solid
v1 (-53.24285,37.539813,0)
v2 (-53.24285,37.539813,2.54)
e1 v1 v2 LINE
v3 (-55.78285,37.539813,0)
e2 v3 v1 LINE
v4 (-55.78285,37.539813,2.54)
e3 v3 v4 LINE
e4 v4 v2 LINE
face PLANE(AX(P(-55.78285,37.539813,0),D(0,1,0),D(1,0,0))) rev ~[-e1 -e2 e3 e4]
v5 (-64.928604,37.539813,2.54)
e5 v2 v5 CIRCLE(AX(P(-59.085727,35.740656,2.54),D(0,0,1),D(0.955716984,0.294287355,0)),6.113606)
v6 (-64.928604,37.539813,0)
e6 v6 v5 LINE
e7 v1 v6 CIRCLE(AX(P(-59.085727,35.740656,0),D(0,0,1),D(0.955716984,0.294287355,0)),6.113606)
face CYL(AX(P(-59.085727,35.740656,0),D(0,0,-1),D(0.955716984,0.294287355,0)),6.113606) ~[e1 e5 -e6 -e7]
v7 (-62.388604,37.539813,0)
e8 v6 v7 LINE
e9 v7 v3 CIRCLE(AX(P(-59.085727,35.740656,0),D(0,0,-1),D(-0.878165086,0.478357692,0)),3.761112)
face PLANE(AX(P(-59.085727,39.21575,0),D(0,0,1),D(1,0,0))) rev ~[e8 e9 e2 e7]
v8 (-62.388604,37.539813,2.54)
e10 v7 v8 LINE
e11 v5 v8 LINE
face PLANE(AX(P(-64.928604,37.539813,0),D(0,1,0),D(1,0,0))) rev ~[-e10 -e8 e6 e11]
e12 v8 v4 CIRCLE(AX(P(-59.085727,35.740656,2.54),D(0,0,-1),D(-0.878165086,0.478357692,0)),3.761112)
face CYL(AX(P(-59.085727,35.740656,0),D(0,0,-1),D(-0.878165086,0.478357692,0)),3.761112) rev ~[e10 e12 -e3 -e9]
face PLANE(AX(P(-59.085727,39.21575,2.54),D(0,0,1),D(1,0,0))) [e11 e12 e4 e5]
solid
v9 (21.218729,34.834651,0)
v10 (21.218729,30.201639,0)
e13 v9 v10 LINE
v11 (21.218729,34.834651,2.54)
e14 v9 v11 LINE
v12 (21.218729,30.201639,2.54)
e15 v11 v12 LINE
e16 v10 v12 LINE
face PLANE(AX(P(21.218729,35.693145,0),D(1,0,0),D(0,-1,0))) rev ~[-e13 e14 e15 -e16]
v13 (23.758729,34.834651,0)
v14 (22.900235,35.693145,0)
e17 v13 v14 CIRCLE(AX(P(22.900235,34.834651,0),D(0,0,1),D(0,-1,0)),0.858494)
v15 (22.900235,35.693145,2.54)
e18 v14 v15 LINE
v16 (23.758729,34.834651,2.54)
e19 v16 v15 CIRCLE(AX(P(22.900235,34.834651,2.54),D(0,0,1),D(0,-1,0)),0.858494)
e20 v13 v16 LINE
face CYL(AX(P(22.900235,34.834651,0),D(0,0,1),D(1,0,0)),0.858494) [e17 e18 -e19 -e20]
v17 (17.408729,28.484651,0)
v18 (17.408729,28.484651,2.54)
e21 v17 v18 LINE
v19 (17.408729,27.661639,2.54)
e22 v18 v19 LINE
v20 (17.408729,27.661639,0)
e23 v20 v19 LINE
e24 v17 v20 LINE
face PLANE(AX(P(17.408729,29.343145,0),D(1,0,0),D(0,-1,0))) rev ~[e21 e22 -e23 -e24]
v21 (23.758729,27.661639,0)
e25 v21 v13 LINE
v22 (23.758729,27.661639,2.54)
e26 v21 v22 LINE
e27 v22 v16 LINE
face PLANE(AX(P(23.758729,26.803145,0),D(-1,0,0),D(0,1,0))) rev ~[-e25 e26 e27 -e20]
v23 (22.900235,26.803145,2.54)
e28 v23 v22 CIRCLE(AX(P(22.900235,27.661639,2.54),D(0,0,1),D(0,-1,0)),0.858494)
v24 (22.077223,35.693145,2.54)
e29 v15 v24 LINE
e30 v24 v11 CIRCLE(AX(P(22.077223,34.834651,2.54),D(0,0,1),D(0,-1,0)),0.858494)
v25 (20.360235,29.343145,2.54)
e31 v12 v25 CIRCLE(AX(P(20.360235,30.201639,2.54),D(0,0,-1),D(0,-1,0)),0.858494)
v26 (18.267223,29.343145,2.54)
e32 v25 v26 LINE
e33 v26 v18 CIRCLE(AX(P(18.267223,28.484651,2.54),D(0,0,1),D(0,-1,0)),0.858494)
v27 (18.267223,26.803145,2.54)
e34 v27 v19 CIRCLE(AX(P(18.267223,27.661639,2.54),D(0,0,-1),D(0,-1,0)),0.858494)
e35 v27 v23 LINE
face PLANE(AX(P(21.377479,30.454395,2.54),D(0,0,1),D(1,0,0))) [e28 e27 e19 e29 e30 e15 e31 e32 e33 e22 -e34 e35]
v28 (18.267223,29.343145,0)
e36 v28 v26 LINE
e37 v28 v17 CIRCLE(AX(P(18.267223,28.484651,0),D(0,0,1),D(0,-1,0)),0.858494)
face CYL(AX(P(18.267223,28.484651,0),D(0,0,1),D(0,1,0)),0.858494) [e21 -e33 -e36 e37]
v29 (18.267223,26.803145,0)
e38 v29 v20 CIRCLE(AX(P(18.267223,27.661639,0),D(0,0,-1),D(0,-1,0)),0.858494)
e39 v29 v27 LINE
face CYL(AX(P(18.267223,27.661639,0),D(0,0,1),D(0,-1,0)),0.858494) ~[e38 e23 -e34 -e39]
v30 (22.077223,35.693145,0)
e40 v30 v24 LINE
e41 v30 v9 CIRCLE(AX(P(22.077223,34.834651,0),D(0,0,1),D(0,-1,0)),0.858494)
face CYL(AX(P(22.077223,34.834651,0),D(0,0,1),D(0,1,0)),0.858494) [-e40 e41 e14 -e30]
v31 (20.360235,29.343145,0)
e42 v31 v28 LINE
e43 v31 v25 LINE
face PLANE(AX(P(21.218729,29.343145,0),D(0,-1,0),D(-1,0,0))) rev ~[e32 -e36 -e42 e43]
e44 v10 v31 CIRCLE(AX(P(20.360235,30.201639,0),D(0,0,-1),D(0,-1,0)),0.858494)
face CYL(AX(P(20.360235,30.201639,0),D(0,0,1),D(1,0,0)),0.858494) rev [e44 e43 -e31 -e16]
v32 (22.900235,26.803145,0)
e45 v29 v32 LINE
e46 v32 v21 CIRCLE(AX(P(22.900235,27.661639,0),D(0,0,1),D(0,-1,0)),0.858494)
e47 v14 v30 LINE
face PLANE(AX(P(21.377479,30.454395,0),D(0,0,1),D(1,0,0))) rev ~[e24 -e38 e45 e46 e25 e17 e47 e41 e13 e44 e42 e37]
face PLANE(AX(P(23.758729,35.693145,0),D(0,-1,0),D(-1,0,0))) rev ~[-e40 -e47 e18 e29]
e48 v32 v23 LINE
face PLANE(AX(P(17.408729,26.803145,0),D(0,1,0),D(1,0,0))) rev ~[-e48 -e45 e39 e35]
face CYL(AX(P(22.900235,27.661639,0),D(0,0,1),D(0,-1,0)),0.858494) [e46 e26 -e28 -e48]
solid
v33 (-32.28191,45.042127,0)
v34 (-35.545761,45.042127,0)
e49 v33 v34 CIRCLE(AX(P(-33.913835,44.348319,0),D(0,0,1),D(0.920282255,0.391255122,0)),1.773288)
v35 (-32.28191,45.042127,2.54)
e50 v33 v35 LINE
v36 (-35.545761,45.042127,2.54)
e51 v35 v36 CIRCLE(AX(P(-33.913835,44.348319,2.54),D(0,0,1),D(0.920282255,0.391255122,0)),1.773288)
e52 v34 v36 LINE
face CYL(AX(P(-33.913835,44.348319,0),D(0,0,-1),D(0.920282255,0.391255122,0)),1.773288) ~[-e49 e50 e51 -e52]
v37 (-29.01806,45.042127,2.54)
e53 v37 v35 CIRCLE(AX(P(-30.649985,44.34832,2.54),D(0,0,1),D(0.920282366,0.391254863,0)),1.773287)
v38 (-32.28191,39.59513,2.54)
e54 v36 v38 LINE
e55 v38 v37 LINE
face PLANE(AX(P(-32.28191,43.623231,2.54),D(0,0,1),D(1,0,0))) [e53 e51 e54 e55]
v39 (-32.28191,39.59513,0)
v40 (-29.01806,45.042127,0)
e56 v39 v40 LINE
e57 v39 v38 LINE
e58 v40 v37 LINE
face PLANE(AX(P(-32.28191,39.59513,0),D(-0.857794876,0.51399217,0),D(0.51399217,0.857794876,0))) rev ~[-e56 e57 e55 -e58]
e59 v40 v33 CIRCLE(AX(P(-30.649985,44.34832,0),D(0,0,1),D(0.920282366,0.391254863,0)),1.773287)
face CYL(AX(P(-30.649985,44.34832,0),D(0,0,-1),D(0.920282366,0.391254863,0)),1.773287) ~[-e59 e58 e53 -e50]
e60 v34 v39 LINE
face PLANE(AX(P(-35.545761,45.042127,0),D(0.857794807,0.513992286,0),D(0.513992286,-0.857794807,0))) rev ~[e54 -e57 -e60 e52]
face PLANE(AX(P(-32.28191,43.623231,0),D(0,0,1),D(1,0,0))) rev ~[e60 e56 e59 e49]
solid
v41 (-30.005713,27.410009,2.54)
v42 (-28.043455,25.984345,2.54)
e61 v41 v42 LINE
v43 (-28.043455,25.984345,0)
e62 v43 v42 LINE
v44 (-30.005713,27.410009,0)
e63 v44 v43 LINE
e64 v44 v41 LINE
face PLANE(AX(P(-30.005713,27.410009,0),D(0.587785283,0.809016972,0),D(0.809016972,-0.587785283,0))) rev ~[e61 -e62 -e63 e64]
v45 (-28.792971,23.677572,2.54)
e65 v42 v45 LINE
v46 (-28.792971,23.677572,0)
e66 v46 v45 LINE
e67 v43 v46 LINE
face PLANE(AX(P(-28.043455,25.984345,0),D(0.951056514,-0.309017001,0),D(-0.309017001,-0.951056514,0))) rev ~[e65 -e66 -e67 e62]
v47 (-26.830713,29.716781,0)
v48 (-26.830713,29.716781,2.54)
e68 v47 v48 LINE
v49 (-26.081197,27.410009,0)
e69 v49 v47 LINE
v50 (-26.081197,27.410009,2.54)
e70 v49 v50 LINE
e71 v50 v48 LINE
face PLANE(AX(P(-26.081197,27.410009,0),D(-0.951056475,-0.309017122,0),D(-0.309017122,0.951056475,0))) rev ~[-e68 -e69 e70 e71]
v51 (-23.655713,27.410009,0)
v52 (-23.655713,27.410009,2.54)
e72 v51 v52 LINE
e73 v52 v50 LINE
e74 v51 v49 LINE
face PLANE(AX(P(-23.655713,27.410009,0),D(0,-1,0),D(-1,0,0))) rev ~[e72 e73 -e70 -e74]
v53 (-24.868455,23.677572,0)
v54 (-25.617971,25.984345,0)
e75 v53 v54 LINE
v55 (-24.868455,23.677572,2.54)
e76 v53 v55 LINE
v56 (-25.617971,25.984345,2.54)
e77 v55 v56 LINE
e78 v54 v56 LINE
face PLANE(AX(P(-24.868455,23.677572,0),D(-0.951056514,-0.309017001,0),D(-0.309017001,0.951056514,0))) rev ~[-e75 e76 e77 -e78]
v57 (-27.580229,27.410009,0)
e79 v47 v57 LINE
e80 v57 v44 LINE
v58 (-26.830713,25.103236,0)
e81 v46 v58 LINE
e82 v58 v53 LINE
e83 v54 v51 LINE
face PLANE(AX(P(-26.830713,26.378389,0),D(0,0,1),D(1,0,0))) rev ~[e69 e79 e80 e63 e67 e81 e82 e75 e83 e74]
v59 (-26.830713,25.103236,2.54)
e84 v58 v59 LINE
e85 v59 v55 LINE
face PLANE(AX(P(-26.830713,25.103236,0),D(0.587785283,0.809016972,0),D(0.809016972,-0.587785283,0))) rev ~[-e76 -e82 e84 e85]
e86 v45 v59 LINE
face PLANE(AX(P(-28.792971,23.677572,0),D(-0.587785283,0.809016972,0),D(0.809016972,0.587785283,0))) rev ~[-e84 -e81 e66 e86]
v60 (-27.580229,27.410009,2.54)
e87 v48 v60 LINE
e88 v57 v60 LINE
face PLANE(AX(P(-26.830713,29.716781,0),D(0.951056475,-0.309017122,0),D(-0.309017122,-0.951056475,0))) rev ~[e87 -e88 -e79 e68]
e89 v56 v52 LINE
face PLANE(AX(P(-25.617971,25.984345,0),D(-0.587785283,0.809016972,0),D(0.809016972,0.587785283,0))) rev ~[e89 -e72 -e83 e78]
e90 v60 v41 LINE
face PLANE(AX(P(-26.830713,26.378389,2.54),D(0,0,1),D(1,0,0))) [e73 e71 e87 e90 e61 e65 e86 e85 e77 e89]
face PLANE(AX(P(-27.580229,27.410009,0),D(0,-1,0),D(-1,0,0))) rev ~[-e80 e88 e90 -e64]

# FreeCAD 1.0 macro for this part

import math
import FreeCAD as App
import Part
import Sketcher
Q = App.Units.Quantity


def edges_at(feature, points):
    """Names of the edges that pass closest to the given points."""
    edges = feature.Shape.Edges
    near = lambda p: min(range(len(edges)), key=lambda i: edges[i].distToShape(Part.Vertex(*p))[0])
    return sorted({f"Edge{near(p) + 1}" for p in points})


def add_polygon(sketch, points):
    """Adds a closed chain of lines whose ends are joined by coincident constraints."""
    first, n = sketch.GeometryCount, len(points)
    for a, b in zip(points, points[1:] + points[:1]):
        sketch.addGeometry(Part.LineSegment(App.Vector(*a, 0), App.Vector(*b, 0)), False)
    for i in range(n):
        sketch.addConstraint(Sketcher.Constraint("Coincident", first + i, 2, first + (i + 1) % n, 1))

doc = App.newDocument("Part")
params = doc.addObject("Spreadsheet::Sheet", "Params")
for row, (alias, value) in enumerate([
    ("sketch1_width", "0.1 in"),
    ("pad1_length", "0.1 in"),
    ("pad2_length", "0.1 in"),
    ("sketch3_width", "0.1 in"),
    ("sketch3_width2", "0.25 in"),
    ("pad3_length", "0.1 in"),
    ("fillet_radius", "0.858494 mm"),
    ("sketch4_length", "0.25 in"),
    ("pad4_length", "0.1 in"),
], start=1):
    params.set(f"A{row}", alias)
    params.set(f"B{row}", "=" + value)
    params.setAlias(f"B{row}", alias)

body = doc.addObject("PartDesign::Body", "Body")

# Sketch on XY plane
sketch1 = doc.addObject("Sketcher::SketchObject", "Sketch")
body.addObject(sketch1)
sketch1.AttachmentSupport = (doc.XY_Plane, [""])
sketch1.MapMode = "FlatFace"
sketch1.addGeometry([
    Part.LineSegment(App.Vector(-55.8, 37.5, 0), App.Vector(-53.2, 37.5, 0)),
    Part.ArcOfCircle(Part.Circle(App.Vector(-59.1, 35.7, 0), App.Vector(0, 0, 1), 6.1), math.radians(17), math.radians(163)),
    Part.LineSegment(App.Vector(-64.9, 37.5, 0), App.Vector(-62.4, 37.5, 0)),
    Part.ArcOfCircle(Part.Circle(App.Vector(-59.1, 35.7, 0), App.Vector(0, 0, 1), 3.8), math.radians(29), math.radians(151)),
], False)
sketch1.addConstraint([
    Sketcher.Constraint("Coincident", 0, 2, 1, 1),
    Sketcher.Constraint("Coincident", 1, 2, 2, 1),
    Sketcher.Constraint("Coincident", 2, 2, 3, 2),
    Sketcher.Constraint("Coincident", 3, 1, 0, 1),
    Sketcher.Constraint("Horizontal", 0),
    Sketcher.Constraint("Horizontal", 2),
    Sketcher.Constraint("Coincident", 3, 3, 1, 3),
    Sketcher.Constraint("Horizontal", 0, 2, 1, 2),
    Sketcher.Constraint("DistanceX", 0, 1, 0, 2, Q("0.1 in")),
    Sketcher.Constraint("Radius", 3, Q("3.761112 mm")),
    Sketcher.Constraint("Radius", 1, Q("6.113606 mm")),
    Sketcher.Constraint("DistanceX", 0, 2, -1, 1, Q("53.24285 mm")),
    Sketcher.Constraint("DistanceY", -1, 1, 1, 3, Q("35.740656 mm")),
])
sketch1.setExpression("Constraints[8]", "Params.sketch1_width")
pad1 = doc.addObject("PartDesign::Pad", "Pad")
body.addObject(pad1)
pad1.Profile = sketch1
pad1.setExpression("Length", "Params.pad1_length")
body2 = doc.addObject("PartDesign::Body", "Body001")

# Sketch on XY plane
sketch2 = doc.addObject("Sketcher::SketchObject", "Sketch001")
body2.addObject(sketch2)
sketch2.AttachmentSupport = (doc.getObject("XY_Plane001"), [""])
sketch2.MapMode = "FlatFace"
add_polygon(sketch2, [(-26.8, 29.7), (-27.6, 27.4), (-30, 27.4), (-28, 26), (-28.8, 23.7), (-26.8, 25.1), (-24.9, 23.7), (-25.6, 26), (-23.7, 27.4), (-26.1, 27.4)])  # lines 0-9
sketch2.addConstraint([
    Sketcher.Constraint("Horizontal", 1),
    Sketcher.Constraint("Horizontal", 8),
    Sketcher.Constraint("Parallel", 0, 3),
    Sketcher.Constraint("Parallel", 2, 5),
    Sketcher.Constraint("Parallel", 4, 7),
    Sketcher.Constraint("Parallel", 6, 9),
    Sketcher.Constraint("Horizontal", 3, 2, 5, 2),
    Sketcher.Constraint("Horizontal", 2, 2, 6, 2),
    Sketcher.Constraint("Horizontal", 1, 2, 7, 2),
    Sketcher.Constraint("Vertical", 4, 2, 9, 2),
    Sketcher.Constraint("Equal", 1, 8),
    Sketcher.Constraint("Equal", 0, 2),
    Sketcher.Constraint("Equal", 2, 3),
    Sketcher.Constraint("Equal", 3, 4),
    Sketcher.Constraint("Equal", 4, 5),
    Sketcher.Constraint("Angle", 0, Q("-108.000008 deg")),
    Sketcher.Constraint("Angle", 2, Q("-36.000002 deg")),
    Sketcher.Constraint("DistanceX", 1, 2, 4, 2, Q("0.125 in")),
    Sketcher.Constraint("DistanceX", 0, 2, -1, 1, Q("27.580229 mm")),
    Sketcher.Constraint("DistanceY", -1, 1, 0, 2, Q("27.410009 mm")),
])
pad2 = doc.addObject("PartDesign::Pad", "Pad001")
body2.addObject(pad2)
pad2.Profile = sketch2
pad2.setExpression("Length", "Params.pad2_length")
body3 = doc.addObject("PartDesign::Body", "Body002")

# Sketch on XY plane
sketch3 = doc.addObject("Sketcher::SketchObject", "Sketch002")
body3.addObject(sketch3)
sketch3.AttachmentSupport = (doc.getObject("XY_Plane002"), [""])
sketch3.MapMode = "FlatFace"
add_polygon(sketch3, [(17.4, 26.8), (23.8, 26.8), (23.8, 35.7), (21.2, 35.7), (21.2, 29.3), (17.4, 29.3)])  # lines 0-5
sketch3.addConstraint([
    Sketcher.Constraint("Horizontal", 0),
    Sketcher.Constraint("Vertical", 1),
    Sketcher.Constraint("Horizontal", 2),
    Sketcher.Constraint("Vertical", 3),
    Sketcher.Constraint("Horizontal", 4),
    Sketcher.Constraint("Vertical", 5),
    Sketcher.Constraint("Equal", 0, 3),
    Sketcher.Constraint("Equal", 2, 5),
    Sketcher.Constraint("DistanceX", 2, 2, 2, 1, Q("0.1 in")),
    Sketcher.Constraint("DistanceX", 0, 1, 0, 2, Q("0.25 in")),
    Sketcher.Constraint("DistanceX", -1, 1, 0, 2, Q("23.758729 mm")),
    Sketcher.Constraint("DistanceY", -1, 1, 0, 2, Q("26.803145 mm")),
])
sketch3.setExpression("Constraints[14]", "Params.sketch3_width")
sketch3.setExpression("Constraints[15]", "Params.sketch3_width2")
pad3 = doc.addObject("PartDesign::Pad", "Pad002")
body3.addObject(pad3)
pad3.Profile = sketch3
pad3.setExpression("Length", "Params.pad3_length")
doc.recompute()

fillet = doc.addObject("PartDesign::Fillet", "Fillet")
body3.addObject(fillet)
fillet.Base = (pad3, edges_at(pad3, [
    (17.409, 29.343, 1.27),
    (21.219, 29.343, 1.27),
    (17.409, 26.803, 1.27),
    (23.759, 26.803, 1.27),
    (23.759, 35.693, 1.27),
    (21.219, 35.693, 1.27),
]))
fillet.setExpression("Radius", "Params.fillet_radius")
body4 = doc.addObject("PartDesign::Body", "Body003")

# Sketch on XY plane
sketch4 = doc.addObject("Sketcher::SketchObject", "Sketch003")
body4.addObject(sketch4)
sketch4.AttachmentSupport = (doc.getObject("XY_Plane003"), [""])
sketch4.MapMode = "FlatFace"
sketch4.addGeometry([
    Part.ArcOfCircle(Part.Circle(App.Vector(-33.9, 44.3, 0), App.Vector(0, 0, 1), 1.8), math.radians(23), math.radians(157)),
    Part.LineSegment(App.Vector(-35.5, 45, 0), App.Vector(-32.3, 39.6, 0)),
    Part.LineSegment(App.Vector(-32.3, 39.6, 0), App.Vector(-29, 45, 0)),
    Part.ArcOfCircle(Part.Circle(App.Vector(-30.6, 44.3, 0), App.Vector(0, 0, 1), 1.8), math.radians(23), math.radians(157)),
], False)
sketch4.addConstraint([
    Sketcher.Constraint("Coincident", 0, 2, 1, 1),
    Sketcher.Constraint("Coincident", 1, 2, 2, 1),
    Sketcher.Constraint("Coincident", 2, 2, 3, 1),
    Sketcher.Constraint("Coincident", 3, 2, 0, 1),
    Sketcher.Constraint("Equal", 0, 3),
    Sketcher.Constraint("Horizontal", 0, 3, 3, 3),
    Sketcher.Constraint("Horizontal", 0, 2, 2, 2),
    Sketcher.Constraint("Horizontal", 2, 2, 3, 2),
    Sketcher.Constraint("Vertical", 1, 2, 3, 2),
    Sketcher.Constraint("Distance", 1, Q("0.25 in")),
    Sketcher.Constraint("Radius", 0, Q("1.773288 mm")),
    Sketcher.Constraint("DistanceX", 0, 2, 2, 2, Q("6.527701 mm")),
    Sketcher.Constraint("DistanceY", -1, 1, 0, 3, Q("44.348319 mm")),
    Sketcher.Constraint("DistanceX", 0, 2, -1, 1, Q("35.545761 mm")),
])
sketch4.setExpression("Constraints[9]", "Params.sketch4_length")
pad4 = doc.addObject("PartDesign::Pad", "Pad003")
body4.addObject(pad4)
pad4.Profile = sketch4
pad4.setExpression("Length", "Params.pad4_length")

doc.recompute()
